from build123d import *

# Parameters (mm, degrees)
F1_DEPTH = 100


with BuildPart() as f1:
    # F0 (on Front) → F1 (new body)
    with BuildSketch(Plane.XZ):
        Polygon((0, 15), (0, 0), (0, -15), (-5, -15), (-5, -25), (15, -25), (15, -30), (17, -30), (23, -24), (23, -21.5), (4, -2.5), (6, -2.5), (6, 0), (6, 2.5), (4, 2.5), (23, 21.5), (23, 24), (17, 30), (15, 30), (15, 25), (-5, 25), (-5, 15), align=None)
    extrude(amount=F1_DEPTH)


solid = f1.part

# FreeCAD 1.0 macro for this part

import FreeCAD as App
import Part
import Sketcher

V = App.Vector
Q = App.Units.Quantity

doc = App.newDocument("Part")
params = doc.addObject("Spreadsheet::Sheet", "Params")
for row, (alias, value) in enumerate([
    ("sketch1_width", "5 mm"),
    ("sketch1_width2", "20 mm"),
    ("sketch1_width3", "2 mm"),
    ("sketch1_height", "30 mm"),
    ("sketch1_height2", "10 mm"),
    ("pad1_length", "100 mm"),
], start=1):
    params.set(f"A{row}", alias)
    params.set(f"B{row}", "=" + value)
    params.setAlias(f"B{row}", alias)

body = doc.addObject("PartDesign::Body", "Body")

sketch1 = body.newObject("Sketcher::SketchObject", "Sketch")
sketch1.AttachmentSupport = (doc.getObject("XZ_Plane"), [""])
sketch1.MapMode = "FlatFace"
sketch1.addGeometry([
    Part.LineSegment(V(0, 15, 0), V(0, -15, 0)),
    Part.LineSegment(V(0, -15, 0), V(-5, -15, 0)),
    Part.LineSegment(V(-5, -15, 0), V(-5, -25, 0)),
    Part.LineSegment(V(-5, -25, 0), V(15, -25, 0)),
    Part.LineSegment(V(15, -25, 0), V(15, -30, 0)),
    Part.LineSegment(V(15, -30, 0), V(17, -30, 0)),
    Part.LineSegment(V(17, -30, 0), V(23, -24, 0)),
    Part.LineSegment(V(23, -24, 0), V(23, -21.5, 0)),
    Part.LineSegment(V(23, -21.5, 0), V(4, -2.5, 0)),
    Part.LineSegment(V(4, -2.5, 0), V(6, -2.5, 0)),
    Part.LineSegment(V(6, -2.5, 0), V(6, 2.5, 0)),
    Part.LineSegment(V(6, 2.5, 0), V(4, 2.5, 0)),
    Part.LineSegment(V(4, 2.5, 0), V(23, 21.5, 0)),
    Part.LineSegment(V(23, 21.5, 0), V(23, 24, 0)),
    Part.LineSegment(V(23, 24, 0), V(17, 30, 0)),
    Part.LineSegment(V(17, 30, 0), V(15, 30, 0)),
    Part.LineSegment(V(15, 30, 0), V(15, 25, 0)),
    Part.LineSegment(V(15, 25, 0), V(-5, 25, 0)),
    Part.LineSegment(V(-5, 25, 0), V(-5, 15, 0)),
    Part.LineSegment(V(-5, 15, 0), V(0, 15, 0)),
], False)
sketch1.addConstraint([
    Sketcher.Constraint("Coincident", 0, 2, 1, 1),
    Sketcher.Constraint("Coincident", 1, 2, 2, 1),
    Sketcher.Constraint("Coincident", 2, 2, 3, 1),
    Sketcher.Constraint("Coincident", 3, 2, 4, 1),
    Sketcher.Constraint("Coincident", 4, 2, 5, 1),
    Sketcher.Constraint("Coincident", 5, 2, 6, 1),
    Sketcher.Constraint("Coincident", 6, 2, 7, 1),
    Sketcher.Constraint("Coincident", 7, 2, 8, 1),
    Sketcher.Constraint("Coincident", 8, 2, 9, 1),
    Sketcher.Constraint("Coincident", 9, 2, 10, 1),
    Sketcher.Constraint("Coincident", 10, 2, 11, 1),
    Sketcher.Constraint("Coincident", 11, 2, 12, 1),
    Sketcher.Constraint("Coincident", 12, 2, 13, 1),
    Sketcher.Constraint("Coincident", 13, 2, 14, 1),
    Sketcher.Constraint("Coincident", 14, 2, 15, 1),
    Sketcher.Constraint("Coincident", 15, 2, 16, 1),
    Sketcher.Constraint("Coincident", 16, 2, 17, 1),
    Sketcher.Constraint("Coincident", 17, 2, 18, 1),
    Sketcher.Constraint("Coincident", 18, 2, 19, 1),
    Sketcher.Constraint("Coincident", 19, 2, 0, 1),
    Sketcher.Constraint("Vertical", 0),
    Sketcher.Constraint("Horizontal", 1),
    Sketcher.Constraint("Vertical", 2),
    Sketcher.Constraint("Horizontal", 3),
    Sketcher.Constraint("Vertical", 4),
    Sketcher.Constraint("Horizontal", 5),
    Sketcher.Constraint("Vertical", 7),
    Sketcher.Constraint("Horizontal", 9),
    Sketcher.Constraint("Vertical", 10),
    Sketcher.Constraint("Horizontal", 11),
    Sketcher.Constraint("Vertical", 13),
    Sketcher.Constraint("Horizontal", 15),
    Sketcher.Constraint("Vertical", 16),
    Sketcher.Constraint("Horizontal", 17),
    Sketcher.Constraint("Vertical", 18),
    Sketcher.Constraint("Horizontal", 19),
    Sketcher.Constraint("Symmetric", 0, 2, 19, 2, -1, 1),
    Sketcher.Constraint("Symmetric", 8, 2, 11, 2, -1),
    Sketcher.Constraint("Symmetric", 7, 2, 12, 2, -1),
    Sketcher.Constraint("Symmetric", 5, 2, 14, 2, -1),
    Sketcher.Constraint("Symmetric", 3, 2, 16, 2, -1),
    Sketcher.Constraint("Perpendicular", 6, 8),
    Sketcher.Constraint("Perpendicular", 8, 12),
    Sketcher.Constraint("Perpendicular", 12, 14),
    Sketcher.Constraint("Vertical", 2, 2, 17, 2),
    Sketcher.Constraint("Equal", 5, 9),
    Sketcher.Constraint("Equal", 19, 4),
    Sketcher.Constraint("Equal", 4, 10),
    Sketcher.Constraint("DistanceX", 1, 2, 1, 1, Q("5 mm")),
    Sketcher.Constraint("DistanceX", 3, 1, 3, 2, Q("20 mm")),
    Sketcher.Constraint("DistanceX", 5, 1, 5, 2, Q("2 mm")),
    Sketcher.Constraint("DistanceY", 0, 2, 0, 1, Q("30 mm")),
    Sketcher.Constraint("DistanceY", 2, 2, 2, 1, Q("10 mm")),
    Sketcher.Constraint("DistanceY", 7, 1, 7, 2, Q("2.5 mm")),
    Sketcher.Constraint("DistanceX", -1, 1, 6, 2, Q("23 mm")),
])
sketch1.setExpression("Constraints[48]", "Params.sketch1_width")
sketch1.setExpression("Constraints[49]", "Params.sketch1_width2")
sketch1.setExpression("Constraints[50]", "Params.sketch1_width3")
sketch1.setExpression("Constraints[51]", "Params.sketch1_height")
sketch1.setExpression("Constraints[52]", "Params.sketch1_height2")
pad1 = body.newObject("PartDesign::Pad", "Pad")
pad1.Profile = sketch1
pad1.setExpression("Length", "Params.pad1_length")

doc.recompute()
